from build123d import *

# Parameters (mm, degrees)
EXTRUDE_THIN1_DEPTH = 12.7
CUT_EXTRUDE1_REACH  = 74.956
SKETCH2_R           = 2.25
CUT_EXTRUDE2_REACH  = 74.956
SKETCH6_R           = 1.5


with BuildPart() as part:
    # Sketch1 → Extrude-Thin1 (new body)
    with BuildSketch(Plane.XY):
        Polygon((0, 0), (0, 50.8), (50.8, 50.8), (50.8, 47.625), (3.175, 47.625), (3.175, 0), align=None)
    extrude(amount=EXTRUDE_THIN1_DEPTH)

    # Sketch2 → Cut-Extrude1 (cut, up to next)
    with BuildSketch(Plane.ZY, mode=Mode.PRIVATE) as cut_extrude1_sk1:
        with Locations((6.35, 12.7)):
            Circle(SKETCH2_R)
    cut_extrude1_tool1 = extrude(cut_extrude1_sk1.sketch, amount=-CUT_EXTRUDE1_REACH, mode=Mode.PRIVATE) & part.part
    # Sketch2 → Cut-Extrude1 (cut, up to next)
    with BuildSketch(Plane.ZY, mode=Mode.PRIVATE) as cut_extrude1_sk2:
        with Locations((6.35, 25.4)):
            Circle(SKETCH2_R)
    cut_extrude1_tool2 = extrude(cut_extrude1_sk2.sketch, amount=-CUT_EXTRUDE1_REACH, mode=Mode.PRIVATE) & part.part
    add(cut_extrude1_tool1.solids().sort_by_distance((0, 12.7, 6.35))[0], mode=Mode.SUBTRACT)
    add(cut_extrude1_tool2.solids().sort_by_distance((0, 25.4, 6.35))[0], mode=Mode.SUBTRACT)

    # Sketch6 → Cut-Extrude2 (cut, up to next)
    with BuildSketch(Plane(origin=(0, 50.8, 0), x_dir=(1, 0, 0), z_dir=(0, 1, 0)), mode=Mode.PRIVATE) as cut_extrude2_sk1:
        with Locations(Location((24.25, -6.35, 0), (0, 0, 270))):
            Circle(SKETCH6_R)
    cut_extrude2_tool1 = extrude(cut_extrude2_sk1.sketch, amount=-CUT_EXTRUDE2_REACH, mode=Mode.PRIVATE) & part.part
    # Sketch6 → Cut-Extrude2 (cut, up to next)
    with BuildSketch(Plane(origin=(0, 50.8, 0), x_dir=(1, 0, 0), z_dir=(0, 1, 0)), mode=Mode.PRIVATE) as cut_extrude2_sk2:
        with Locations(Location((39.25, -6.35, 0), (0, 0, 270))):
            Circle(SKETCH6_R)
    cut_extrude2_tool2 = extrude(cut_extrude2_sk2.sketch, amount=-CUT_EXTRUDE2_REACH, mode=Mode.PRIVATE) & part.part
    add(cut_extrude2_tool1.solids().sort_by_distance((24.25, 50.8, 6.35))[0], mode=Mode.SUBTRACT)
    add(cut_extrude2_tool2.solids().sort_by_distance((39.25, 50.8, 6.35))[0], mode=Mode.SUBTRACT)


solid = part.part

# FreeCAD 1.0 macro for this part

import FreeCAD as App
import Part
import Sketcher

V = App.Vector
Q = App.Units.Quantity

doc = App.newDocument("Part")
body = doc.addObject("PartDesign::Body", "Body")

sketch1 = doc.addObject("Sketcher::SketchObject", "Sketch")
body.addObject(sketch1)
sketch1.AttachmentSupport = (doc.XY_Plane, [""])
sketch1.MapMode = "FlatFace"
sketch1.addGeometry([
    Part.LineSegment(V(0, 50.8, 0), V(0, 0, 0)),
    Part.LineSegment(V(0, 0, 0), V(3.175, 0, 0)),
    Part.LineSegment(V(3.175, 0, 0), V(3.175, 47.625, 0)),
    Part.LineSegment(V(3.175, 47.625, 0), V(50.8, 47.625, 0)),
    Part.LineSegment(V(50.8, 47.625, 0), V(50.8, 50.8, 0)),
    Part.LineSegment(V(50.8, 50.8, 0), V(0, 50.8, 0)),
], False)
sketch1.addConstraint([
    Sketcher.Constraint("Coincident", 0, 2, 1, 1),
    Sketcher.Constraint("Coincident", 1, 2, 2, 1),
    Sketcher.Constraint("Coincident", 2, 2, 3, 1),
    Sketcher.Constraint("Coincident", 3, 2, 4, 1),
    Sketcher.Constraint("Coincident", 4, 2, 5, 1),
    Sketcher.Constraint("Coincident", 5, 2, 0, 1),
    Sketcher.Constraint("Vertical", 0),
    Sketcher.Constraint("Horizontal", 1),
    Sketcher.Constraint("Vertical", 2),
    Sketcher.Constraint("Horizontal", 3),
    Sketcher.Constraint("Vertical", 4),
    Sketcher.Constraint("Horizontal", 5),
    Sketcher.Constraint("Coincident", 0, 2, -1, 1),
    Sketcher.Constraint("Equal", 5, 0),
    Sketcher.Constraint("Equal", 3, 2),
    Sketcher.Constraint("DistanceX", 5, 2, 5, 1, Q("2 in")),
    Sketcher.Constraint("DistanceX", 1, 1, 1, 2, Q("0.125 in")),
])
pad1 = doc.addObject("PartDesign::Pad", "Pad")
body.addObject(pad1)
pad1.Profile = sketch1
pad1.Length = Q("0.5 in")

sketch2 = doc.addObject("Sketcher::SketchObject", "Sketch001")
body.addObject(sketch2)
sketch2.AttachmentSupport = (doc.YZ_Plane, [""])
sketch2.MapMode = "FlatFace"
sketch2.addGeometry(Part.Circle(V(12.7, 6.35, 0), V(0, 0, 1), 2.25), False)
sketch2.addConstraint([
    Sketcher.Constraint("DistanceX", -1, 1, 0, 3, Q("0.5 in")),
    Sketcher.Constraint("Diameter", 0, Q("4.5 mm")),
    Sketcher.Constraint("DistanceY", -1, 1, 0, 3, Q("0.25 in")),
])
pocket1 = doc.addObject("PartDesign::Pocket", "Pocket")
body.addObject(pocket1)
pocket1.Profile = sketch2
pocket1.Type = "UpToFirst"
pocket1.Reversed = True

sketch3 = doc.addObject("Sketcher::SketchObject", "Sketch002")
body.addObject(sketch3)
sketch3.AttachmentSupport = (doc.YZ_Plane, [""])
sketch3.MapMode = "FlatFace"
sketch3.addGeometry(Part.Circle(V(25.4, 6.35, 0), V(0, 0, 1), 2.25), False)
sketch3.addConstraint([
    Sketcher.Constraint("DistanceX", -1, 1, 0, 3, Q("1 in")),
    Sketcher.Constraint("Diameter", 0, Q("4.5 mm")),
    Sketcher.Constraint("DistanceY", -1, 1, 0, 3, Q("0.25 in")),
])
pocket2 = doc.addObject("PartDesign::Pocket", "Pocket001")
body.addObject(pocket2)
pocket2.Profile = sketch3
pocket2.Type = "UpToFirst"
pocket2.Reversed = True

sketch4 = doc.addObject("Sketcher::SketchObject", "Sketch003")
body.addObject(sketch4)
sketch4.AttachmentSupport = (doc.XZ_Plane, [""])
sketch4.MapMode = "FlatFace"
sketch4.AttachmentOffset = App.Placement(V(0, 0, -2 * 25.4), App.Rotation())
sketch4.addGeometry(Part.Circle(V(24.25, 6.35, 0), V(0, 0, 1), 1.5), False)
sketch4.addConstraint([
    Sketcher.Constraint("Diameter", 0, Q("3 mm")),
    Sketcher.Constraint("DistanceY", -1, 1, 0, 3, Q("0.25 in")),
    Sketcher.Constraint("DistanceX", -1, 1, 0, 3, Q("24.25 mm")),
])
pocket3 = doc.addObject("PartDesign::Pocket", "Pocket002")
body.addObject(pocket3)
pocket3.Profile = sketch4
pocket3.Type = "UpToFirst"
pocket3.Reversed = True

sketch5 = doc.addObject("Sketcher::SketchObject", "Sketch004")
body.addObject(sketch5)
sketch5.AttachmentSupport = (doc.XZ_Plane, [""])
sketch5.MapMode = "FlatFace"
sketch5.AttachmentOffset = App.Placement(V(0, 0, -2 * 25.4), App.Rotation())
sketch5.addGeometry(Part.Circle(V(39.25, 6.35, 0), V(0, 0, 1), 1.5), False)
sketch5.addConstraint([
    Sketcher.Constraint("Diameter", 0, Q("3 mm")),
    Sketcher.Constraint("DistanceY", -1, 1, 0, 3, Q("0.25 in")),
    Sketcher.Constraint("DistanceX", -1, 1, 0, 3, Q("39.25 mm")),
])
pocket4 = doc.addObject("PartDesign::Pocket", "Pocket003")
body.addObject(pocket4)
pocket4.Profile = sketch5
pocket4.Type = "UpToFirst"
pocket4.Reversed = True

doc.recompute()
